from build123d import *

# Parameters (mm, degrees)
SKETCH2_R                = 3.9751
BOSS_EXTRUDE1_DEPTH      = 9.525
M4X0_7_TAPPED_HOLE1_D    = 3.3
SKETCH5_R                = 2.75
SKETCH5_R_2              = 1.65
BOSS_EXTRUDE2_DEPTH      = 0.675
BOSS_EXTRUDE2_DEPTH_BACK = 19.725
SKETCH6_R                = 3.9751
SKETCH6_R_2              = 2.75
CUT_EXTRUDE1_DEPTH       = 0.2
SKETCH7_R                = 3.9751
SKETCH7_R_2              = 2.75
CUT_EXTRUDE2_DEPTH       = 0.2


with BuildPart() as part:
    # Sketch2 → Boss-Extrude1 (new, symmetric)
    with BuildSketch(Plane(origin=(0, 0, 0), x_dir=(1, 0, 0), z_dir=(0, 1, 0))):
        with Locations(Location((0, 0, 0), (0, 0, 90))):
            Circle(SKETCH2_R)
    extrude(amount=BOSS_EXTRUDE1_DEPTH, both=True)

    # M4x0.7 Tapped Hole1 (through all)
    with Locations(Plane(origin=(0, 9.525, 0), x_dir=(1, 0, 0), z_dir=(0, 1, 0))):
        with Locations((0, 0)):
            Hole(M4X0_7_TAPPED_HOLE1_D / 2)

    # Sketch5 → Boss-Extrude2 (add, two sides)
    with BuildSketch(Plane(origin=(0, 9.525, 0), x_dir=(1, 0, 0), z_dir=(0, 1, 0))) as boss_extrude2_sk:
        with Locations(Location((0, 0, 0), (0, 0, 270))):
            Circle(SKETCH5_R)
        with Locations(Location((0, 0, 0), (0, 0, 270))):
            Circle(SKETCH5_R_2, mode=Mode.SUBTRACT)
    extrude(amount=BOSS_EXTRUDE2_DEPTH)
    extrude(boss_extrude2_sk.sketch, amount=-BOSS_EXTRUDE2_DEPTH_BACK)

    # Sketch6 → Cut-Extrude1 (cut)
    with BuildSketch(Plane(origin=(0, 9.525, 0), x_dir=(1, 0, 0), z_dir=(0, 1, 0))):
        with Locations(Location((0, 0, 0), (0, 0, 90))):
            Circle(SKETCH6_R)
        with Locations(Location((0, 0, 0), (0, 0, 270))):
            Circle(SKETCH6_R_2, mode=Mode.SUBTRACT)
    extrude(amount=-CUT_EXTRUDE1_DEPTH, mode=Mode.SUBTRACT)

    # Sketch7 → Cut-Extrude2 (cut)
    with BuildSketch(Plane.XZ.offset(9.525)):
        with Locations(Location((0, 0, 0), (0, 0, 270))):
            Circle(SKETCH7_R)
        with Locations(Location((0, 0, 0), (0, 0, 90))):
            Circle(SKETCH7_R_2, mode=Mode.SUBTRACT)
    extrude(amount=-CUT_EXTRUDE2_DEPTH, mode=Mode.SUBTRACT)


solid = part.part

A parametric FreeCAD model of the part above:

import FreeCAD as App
import Part
import Sketcher

doc = App.newDocument("Part")
params = doc.addObject("Spreadsheet::Sheet", "Params")
for row, (alias, value) in enumerate([
    ("pad1_length", "19.05 mm"),
    ("sketch2_diameter", "3.3 mm"),
    ("hole_diameter", "3.3 mm"),
    ("sketch3_diameter", "5.5 mm"),
    ("sketch3_diameter2", "3.3 mm"),
    ("pad2_length", "0.675 mm"),
    ("pad2_length2", "19.725 mm"),
    ("sketch4_diameter", "5.5 mm"),
    ("pocket1_length", "0.2 mm"),
    ("sketch5_diameter", "5.5 mm"),
    ("pocket2_length", "0.2 mm"),
], start=1):
    params.set(f"A{row}", alias)
    params.set(f"B{row}", "=" + value)
    params.setAlias(f"B{row}", alias)

body = doc.addObject("PartDesign::Body", "Body")

# Sketch on XZ plane
sketch1 = body.newObject("Sketcher::SketchObject", "Sketch")
sketch1.AttachmentSupport = (doc.getObject("XZ_Plane"), [""])
sketch1.MapMode = "FlatFace"
sketch1.addGeometry(Part.Circle(App.Vector(0, 0, 0), App.Vector(0, 0, 1), 4), False)
sketch1.addConstraint([
    Sketcher.Constraint("Coincident", 0, 3, -1, 1),
    Sketcher.Constraint("Diameter", 0, 7.9502),
])
pad1 = body.newObject("PartDesign::Pad", "Pad")
pad1.Profile = sketch1
pad1.setExpression("Length", "Params.pad1_length")
pad1.Midplane = True

# Sketch on XZ plane
sketch2 = body.newObject("Sketcher::SketchObject", "Sketch001")
sketch2.AttachmentSupport = (doc.getObject("XZ_Plane"), [""])
sketch2.MapMode = "FlatFace"
sketch2.AttachmentOffset = App.Placement(App.Vector(0, 0, -9.525), App.Rotation())
sketch2.addGeometry(Part.Circle(App.Vector(0, 0, 0), App.Vector(0, 0, 1), 1.6), False)
sketch2.addConstraint([
    Sketcher.Constraint("Coincident", 0, 3, -1, 1),
    Sketcher.Constraint("Diameter", 0, 3.3),
])
sketch2.setExpression("Constraints[1]", "Params.sketch2_diameter")
doc.recompute()
hole = body.newObject("PartDesign::Hole", "Hole")
hole.Profile = sketch2
hole.ThreadType = "None"
hole.setExpression("Diameter", "Params.hole_diameter")
hole.DepthType = "ThroughAll"
hole.Reversed = True

# Sketch on XZ plane
sketch3 = body.newObject("Sketcher::SketchObject", "Sketch002")
sketch3.AttachmentSupport = (doc.getObject("XZ_Plane"), [""])
sketch3.MapMode = "FlatFace"
sketch3.AttachmentOffset = App.Placement(App.Vector(0, 0, -9.525), App.Rotation())
sketch3.addGeometry([
    Part.Circle(App.Vector(0, 0, 0), App.Vector(0, 0, 1), 2.8),
    Part.Circle(App.Vector(0, 0, 0), App.Vector(0, 0, 1), 1.6),
], False)
sketch3.addConstraint([
    Sketcher.Constraint("Coincident", 0, 3, -1, 1),
    Sketcher.Constraint("Coincident", 1, 3, -1, 1),
    Sketcher.Constraint("Diameter", 0, 5.5),
    Sketcher.Constraint("Diameter", 1, 3.3),
])
sketch3.setExpression("Constraints[2]", "Params.sketch3_diameter")
sketch3.setExpression("Constraints[3]", "Params.sketch3_diameter2")
pad2 = body.newObject("PartDesign::Pad", "Pad001")
pad2.Profile = sketch3
pad2.Type = "TwoLengths"
pad2.setExpression("Length", "Params.pad2_length")
pad2.setExpression("Length2", "Params.pad2_length2")
pad2.Reversed = True

# Sketch on XZ plane
sketch4 = body.newObject("Sketcher::SketchObject", "Sketch003")
sketch4.AttachmentSupport = (doc.getObject("XZ_Plane"), [""])
sketch4.MapMode = "FlatFace"
sketch4.AttachmentOffset = App.Placement(App.Vector(0, 0, -9.525), App.Rotation())
sketch4.addGeometry([
    Part.Circle(App.Vector(0, 0, 0), App.Vector(0, 0, 1), 4),
    Part.Circle(App.Vector(0, 0, 0), App.Vector(0, 0, 1), 2.8),
], False)
sketch4.addConstraint([
    Sketcher.Constraint("Coincident", 0, 3, -1, 1),
    Sketcher.Constraint("Coincident", 1, 3, -1, 1),
    Sketcher.Constraint("Diameter", 1, 5.5),
    Sketcher.Constraint("Diameter", 0, 7.9502),
])
sketch4.setExpression("Constraints[2]", "Params.sketch4_diameter")
pocket1 = body.newObject("PartDesign::Pocket", "Pocket")
pocket1.Profile = sketch4
pocket1.setExpression("Length", "Params.pocket1_length")
pocket1.Reversed = True

# Sketch on XZ plane
sketch5 = body.newObject("Sketcher::SketchObject", "Sketch004")
sketch5.AttachmentSupport = (doc.getObject("XZ_Plane"), [""])
sketch5.MapMode = "FlatFace"
sketch5.AttachmentOffset = App.Placement(App.Vector(0, 0, 9.525), App.Rotation())
sketch5.addGeometry([
    Part.Circle(App.Vector(0, 0, 0), App.Vector(0, 0, 1), 4),
    Part.Circle(App.Vector(0, 0, 0), App.Vector(0, 0, 1), 2.8),
], False)
sketch5.addConstraint([
    Sketcher.Constraint("Coincident", 0, 3, -1, 1),
    Sketcher.Constraint("Coincident", 1, 3, -1, 1),
    Sketcher.Constraint("Diameter", 1, 5.5),
    Sketcher.Constraint("Diameter", 0, 7.9502),
])
sketch5.setExpression("Constraints[2]", "Params.sketch5_diameter")
pocket2 = body.newObject("PartDesign::Pocket", "Pocket001")
pocket2.Profile = sketch5
pocket2.setExpression("Length", "Params.pocket2_length")

doc.recompute()
